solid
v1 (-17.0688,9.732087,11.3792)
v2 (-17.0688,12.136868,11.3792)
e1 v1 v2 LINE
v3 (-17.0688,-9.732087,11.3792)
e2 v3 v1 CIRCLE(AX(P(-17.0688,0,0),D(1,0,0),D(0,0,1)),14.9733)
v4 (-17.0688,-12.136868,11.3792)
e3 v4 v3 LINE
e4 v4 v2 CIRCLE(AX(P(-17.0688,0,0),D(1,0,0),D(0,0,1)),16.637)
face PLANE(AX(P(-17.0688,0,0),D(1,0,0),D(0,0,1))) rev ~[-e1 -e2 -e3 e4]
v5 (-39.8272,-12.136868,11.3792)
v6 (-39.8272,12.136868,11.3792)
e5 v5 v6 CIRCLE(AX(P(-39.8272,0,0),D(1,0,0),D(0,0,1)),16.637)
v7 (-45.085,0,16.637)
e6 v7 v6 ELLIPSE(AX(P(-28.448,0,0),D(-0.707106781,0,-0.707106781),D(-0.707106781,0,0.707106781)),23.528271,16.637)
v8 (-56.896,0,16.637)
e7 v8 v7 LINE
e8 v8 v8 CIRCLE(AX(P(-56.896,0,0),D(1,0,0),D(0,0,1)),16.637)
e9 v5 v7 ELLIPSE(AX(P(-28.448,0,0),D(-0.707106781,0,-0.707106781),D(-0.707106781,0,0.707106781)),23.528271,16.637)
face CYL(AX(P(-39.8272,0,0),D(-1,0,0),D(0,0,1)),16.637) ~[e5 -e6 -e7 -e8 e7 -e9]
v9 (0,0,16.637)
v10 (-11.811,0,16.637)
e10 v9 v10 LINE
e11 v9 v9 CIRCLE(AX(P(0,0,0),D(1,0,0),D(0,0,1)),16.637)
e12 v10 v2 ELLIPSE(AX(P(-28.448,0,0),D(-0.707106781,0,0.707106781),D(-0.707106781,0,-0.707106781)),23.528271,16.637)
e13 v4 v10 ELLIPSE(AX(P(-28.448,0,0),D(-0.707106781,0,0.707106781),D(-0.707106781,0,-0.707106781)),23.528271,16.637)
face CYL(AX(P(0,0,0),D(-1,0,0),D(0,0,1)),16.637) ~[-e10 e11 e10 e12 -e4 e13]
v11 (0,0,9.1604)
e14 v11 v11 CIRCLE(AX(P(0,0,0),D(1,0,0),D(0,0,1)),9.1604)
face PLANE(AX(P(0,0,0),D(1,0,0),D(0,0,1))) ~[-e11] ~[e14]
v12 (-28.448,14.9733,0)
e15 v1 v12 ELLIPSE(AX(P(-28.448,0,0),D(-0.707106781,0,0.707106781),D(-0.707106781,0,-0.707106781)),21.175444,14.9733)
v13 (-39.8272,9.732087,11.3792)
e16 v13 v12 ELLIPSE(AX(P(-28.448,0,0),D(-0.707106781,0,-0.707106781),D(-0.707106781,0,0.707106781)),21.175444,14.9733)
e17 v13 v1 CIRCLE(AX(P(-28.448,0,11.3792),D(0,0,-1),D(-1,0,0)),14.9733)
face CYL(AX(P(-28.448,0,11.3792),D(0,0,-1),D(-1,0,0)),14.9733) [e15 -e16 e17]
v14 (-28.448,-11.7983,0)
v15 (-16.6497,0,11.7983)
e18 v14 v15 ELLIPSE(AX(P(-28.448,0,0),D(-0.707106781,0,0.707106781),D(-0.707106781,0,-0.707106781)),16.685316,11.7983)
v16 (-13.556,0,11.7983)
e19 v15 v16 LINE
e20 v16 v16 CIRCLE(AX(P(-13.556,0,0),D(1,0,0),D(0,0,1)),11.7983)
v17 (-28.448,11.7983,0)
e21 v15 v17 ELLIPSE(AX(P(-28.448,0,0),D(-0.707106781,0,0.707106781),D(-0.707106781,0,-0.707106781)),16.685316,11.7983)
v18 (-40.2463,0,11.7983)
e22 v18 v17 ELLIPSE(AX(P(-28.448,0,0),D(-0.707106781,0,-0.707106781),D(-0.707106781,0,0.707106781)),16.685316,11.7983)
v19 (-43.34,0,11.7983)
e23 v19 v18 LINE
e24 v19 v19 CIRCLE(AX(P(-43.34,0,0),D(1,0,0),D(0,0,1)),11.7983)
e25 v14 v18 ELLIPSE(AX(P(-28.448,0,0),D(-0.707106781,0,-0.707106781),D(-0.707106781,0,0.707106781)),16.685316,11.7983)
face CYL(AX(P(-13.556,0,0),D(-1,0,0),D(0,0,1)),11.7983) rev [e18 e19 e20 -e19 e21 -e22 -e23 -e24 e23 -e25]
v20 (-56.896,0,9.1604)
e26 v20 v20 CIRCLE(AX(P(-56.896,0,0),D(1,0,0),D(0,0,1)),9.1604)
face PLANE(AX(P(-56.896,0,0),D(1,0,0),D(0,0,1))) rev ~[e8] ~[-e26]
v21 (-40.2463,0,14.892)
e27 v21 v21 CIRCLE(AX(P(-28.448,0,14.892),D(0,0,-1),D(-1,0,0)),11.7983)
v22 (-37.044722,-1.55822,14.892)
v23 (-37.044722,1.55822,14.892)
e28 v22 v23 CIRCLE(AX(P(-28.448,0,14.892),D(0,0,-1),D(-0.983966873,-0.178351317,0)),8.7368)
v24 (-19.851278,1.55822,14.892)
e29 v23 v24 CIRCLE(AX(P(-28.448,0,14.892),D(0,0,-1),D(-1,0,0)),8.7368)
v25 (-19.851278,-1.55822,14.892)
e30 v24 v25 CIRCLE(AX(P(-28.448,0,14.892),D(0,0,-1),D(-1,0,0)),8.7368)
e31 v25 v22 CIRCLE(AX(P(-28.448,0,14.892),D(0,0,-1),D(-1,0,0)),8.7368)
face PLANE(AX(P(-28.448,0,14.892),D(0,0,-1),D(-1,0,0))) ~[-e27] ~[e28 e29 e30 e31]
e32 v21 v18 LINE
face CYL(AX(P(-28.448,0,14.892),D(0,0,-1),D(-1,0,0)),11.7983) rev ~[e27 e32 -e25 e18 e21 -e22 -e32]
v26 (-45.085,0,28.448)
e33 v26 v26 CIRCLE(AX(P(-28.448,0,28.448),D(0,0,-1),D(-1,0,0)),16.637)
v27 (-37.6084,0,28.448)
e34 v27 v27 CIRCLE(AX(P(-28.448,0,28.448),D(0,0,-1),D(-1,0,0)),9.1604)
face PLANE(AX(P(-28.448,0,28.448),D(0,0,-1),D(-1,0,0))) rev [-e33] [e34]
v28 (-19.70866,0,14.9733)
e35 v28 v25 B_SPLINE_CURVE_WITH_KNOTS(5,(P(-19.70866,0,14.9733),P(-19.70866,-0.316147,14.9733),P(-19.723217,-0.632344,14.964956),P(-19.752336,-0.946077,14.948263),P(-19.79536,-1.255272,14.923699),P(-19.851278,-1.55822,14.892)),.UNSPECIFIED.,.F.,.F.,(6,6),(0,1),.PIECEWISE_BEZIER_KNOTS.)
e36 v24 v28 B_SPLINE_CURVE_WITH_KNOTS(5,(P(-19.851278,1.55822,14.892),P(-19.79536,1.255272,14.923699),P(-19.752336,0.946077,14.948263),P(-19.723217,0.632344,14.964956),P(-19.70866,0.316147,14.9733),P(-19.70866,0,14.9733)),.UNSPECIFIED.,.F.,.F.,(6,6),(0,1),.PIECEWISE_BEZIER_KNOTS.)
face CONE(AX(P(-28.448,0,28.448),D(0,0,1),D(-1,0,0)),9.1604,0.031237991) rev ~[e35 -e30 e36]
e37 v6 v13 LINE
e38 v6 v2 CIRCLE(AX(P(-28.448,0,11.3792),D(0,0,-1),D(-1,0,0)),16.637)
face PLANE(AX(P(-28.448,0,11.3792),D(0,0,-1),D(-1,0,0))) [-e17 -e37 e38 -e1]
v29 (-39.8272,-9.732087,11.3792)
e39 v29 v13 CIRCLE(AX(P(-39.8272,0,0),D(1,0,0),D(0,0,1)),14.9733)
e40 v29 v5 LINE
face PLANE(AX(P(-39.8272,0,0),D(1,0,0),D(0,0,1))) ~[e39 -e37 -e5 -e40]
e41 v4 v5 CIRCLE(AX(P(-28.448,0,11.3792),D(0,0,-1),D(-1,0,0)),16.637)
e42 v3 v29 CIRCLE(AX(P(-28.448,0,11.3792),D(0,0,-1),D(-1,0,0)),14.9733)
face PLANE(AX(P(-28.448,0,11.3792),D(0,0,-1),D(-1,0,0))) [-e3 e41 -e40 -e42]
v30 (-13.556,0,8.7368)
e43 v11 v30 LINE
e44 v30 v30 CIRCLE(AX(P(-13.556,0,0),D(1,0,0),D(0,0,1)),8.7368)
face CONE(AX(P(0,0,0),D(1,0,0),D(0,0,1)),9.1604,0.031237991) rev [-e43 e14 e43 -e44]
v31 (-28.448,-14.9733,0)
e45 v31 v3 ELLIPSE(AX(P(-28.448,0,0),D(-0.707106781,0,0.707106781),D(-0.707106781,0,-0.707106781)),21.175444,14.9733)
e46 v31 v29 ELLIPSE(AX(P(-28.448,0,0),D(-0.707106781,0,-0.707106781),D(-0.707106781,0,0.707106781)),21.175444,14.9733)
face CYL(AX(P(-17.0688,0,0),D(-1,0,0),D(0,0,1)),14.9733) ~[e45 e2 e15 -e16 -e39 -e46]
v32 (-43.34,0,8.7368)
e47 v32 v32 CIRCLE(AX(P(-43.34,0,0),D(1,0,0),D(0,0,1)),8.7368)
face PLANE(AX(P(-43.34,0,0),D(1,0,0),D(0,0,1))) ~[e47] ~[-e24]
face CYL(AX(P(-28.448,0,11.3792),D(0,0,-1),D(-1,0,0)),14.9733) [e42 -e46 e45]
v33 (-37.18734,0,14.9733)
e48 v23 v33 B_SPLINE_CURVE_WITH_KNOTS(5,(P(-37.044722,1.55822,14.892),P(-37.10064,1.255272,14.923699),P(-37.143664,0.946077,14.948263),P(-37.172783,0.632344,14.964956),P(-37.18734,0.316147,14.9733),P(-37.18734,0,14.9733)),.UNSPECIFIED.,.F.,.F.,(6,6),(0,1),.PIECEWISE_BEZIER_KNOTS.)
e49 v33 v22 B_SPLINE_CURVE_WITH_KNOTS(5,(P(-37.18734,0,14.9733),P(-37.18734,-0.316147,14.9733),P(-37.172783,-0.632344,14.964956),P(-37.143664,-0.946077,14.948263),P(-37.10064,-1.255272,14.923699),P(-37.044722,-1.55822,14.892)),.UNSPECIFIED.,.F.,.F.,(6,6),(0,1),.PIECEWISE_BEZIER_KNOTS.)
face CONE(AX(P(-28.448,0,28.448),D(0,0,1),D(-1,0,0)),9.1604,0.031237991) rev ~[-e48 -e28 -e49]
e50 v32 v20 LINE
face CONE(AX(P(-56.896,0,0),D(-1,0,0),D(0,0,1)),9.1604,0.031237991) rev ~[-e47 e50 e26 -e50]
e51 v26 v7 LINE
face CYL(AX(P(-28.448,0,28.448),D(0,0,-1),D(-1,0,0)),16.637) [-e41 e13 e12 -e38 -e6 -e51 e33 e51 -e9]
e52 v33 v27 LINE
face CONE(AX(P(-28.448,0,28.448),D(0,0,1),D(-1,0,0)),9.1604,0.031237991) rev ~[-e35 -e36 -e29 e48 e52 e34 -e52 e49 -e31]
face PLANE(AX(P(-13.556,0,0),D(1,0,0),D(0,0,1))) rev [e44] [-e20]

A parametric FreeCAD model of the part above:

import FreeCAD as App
import Part
import Sketcher
Q = App.Units.Quantity

doc = App.newDocument("Part")
body = doc.addObject("PartDesign::Body", "Body")

sketch1 = body.newObject("Sketcher::SketchObject", "Sketch")
sketch1.AttachmentSupport = (doc.getObject("XZ_Plane"), [""])
sketch1.MapMode = "FlatFace"
sketch1.addGeometry([
    Part.LineSegment(App.Vector(-17.1, 16.6, 0), App.Vector(0, 16.6, 0)),
    Part.LineSegment(App.Vector(0, 16.6, 0), App.Vector(0, 0, 0)),
    Part.LineSegment(App.Vector(0, 0, 0), App.Vector(-56.9, 0, 0)),
    Part.LineSegment(App.Vector(-56.9, 0, 0), App.Vector(-56.9, 16.6, 0)),
    Part.LineSegment(App.Vector(-56.9, 16.6, 0), App.Vector(-39.8, 16.6, 0)),
    Part.LineSegment(App.Vector(-39.8, 16.6, 0), App.Vector(-39.8, 15, 0)),
    Part.LineSegment(App.Vector(-39.8, 15, 0), App.Vector(-17.1, 15, 0)),
    Part.LineSegment(App.Vector(-17.1, 15, 0), App.Vector(-17.1, 16.6, 0)),
], False)
sketch1.addConstraint([
    Sketcher.Constraint("Coincident", 0, 2, 1, 1),
    Sketcher.Constraint("Coincident", 1, 2, 2, 1),
    Sketcher.Constraint("Coincident", 2, 2, 3, 1),
    Sketcher.Constraint("Coincident", 3, 2, 4, 1),
    Sketcher.Constraint("Coincident", 4, 2, 5, 1),
    Sketcher.Constraint("Coincident", 5, 2, 6, 1),
    Sketcher.Constraint("Coincident", 6, 2, 7, 1),
    Sketcher.Constraint("Coincident", 7, 2, 0, 1),
    Sketcher.Constraint("Horizontal", 0),
    Sketcher.Constraint("Vertical", 1),
    Sketcher.Constraint("Horizontal", 2),
    Sketcher.Constraint("Vertical", 3),
    Sketcher.Constraint("Horizontal", 4),
    Sketcher.Constraint("Vertical", 5),
    Sketcher.Constraint("Horizontal", 6),
    Sketcher.Constraint("Vertical", 7),
    Sketcher.Constraint("Coincident", 1, 2, -1, 1),
    Sketcher.Constraint("Horizontal", 0, 2, 3, 2),
    Sketcher.Constraint("Equal", 0, 4),
    Sketcher.Constraint("DistanceX", 0, 1, 0, 2, Q("0.672 in")),
    Sketcher.Constraint("DistanceX", 2, 2, 2, 1, Q("2.24 in")),
    Sketcher.Constraint("DistanceY", 1, 2, 1, 1, Q("0.655 in")),
    Sketcher.Constraint("DistanceY", 5, 2, 5, 1, Q("0.0655 in")),
])
revolution = body.newObject("PartDesign::Revolution", "Revolution")
revolution.Profile = sketch1
revolution.ReferenceAxis = (sketch1, ["H_Axis"])
revolution.Angle = 360

sketch2 = body.newObject("Sketcher::SketchObject", "Sketch001")
sketch2.AttachmentSupport = (doc.getObject("XZ_Plane"), [""])
sketch2.MapMode = "FlatFace"
sketch2.addGeometry([
    Part.LineSegment(App.Vector(-37.6, 28.4, 0), App.Vector(-37.2, 14.9, 0)),
    Part.LineSegment(App.Vector(-37.2, 14.9, 0), App.Vector(-28.4, 14.9, 0)),
    Part.LineSegment(App.Vector(-28.4, 14.9, 0), App.Vector(-28.4, 0, 0)),
    Part.LineSegment(App.Vector(-28.4, 0, 0), App.Vector(-43.4, 0, 0)),
    Part.LineSegment(App.Vector(-43.4, 0, 0), App.Vector(-43.4, 11.4, 0)),
    Part.LineSegment(App.Vector(-43.4, 11.4, 0), App.Vector(-45.1, 11.4, 0)),
    Part.LineSegment(App.Vector(-45.1, 11.4, 0), App.Vector(-45.1, 28.4, 0)),
    Part.LineSegment(App.Vector(-45.1, 28.4, 0), App.Vector(-37.6, 28.4, 0)),
], False)
sketch2.addGeometry(Part.LineSegment(App.Vector(-28.4, 28.4, 0), App.Vector(-28.4, 0, 0)), True)
sketch2.addConstraint([
    Sketcher.Constraint("Coincident", 0, 2, 1, 1),
    Sketcher.Constraint("Coincident", 1, 2, 2, 1),
    Sketcher.Constraint("Coincident", 2, 2, 3, 1),
    Sketcher.Constraint("Coincident", 3, 2, 4, 1),
    Sketcher.Constraint("Coincident", 4, 2, 5, 1),
    Sketcher.Constraint("Coincident", 5, 2, 6, 1),
    Sketcher.Constraint("Coincident", 6, 2, 7, 1),
    Sketcher.Constraint("Coincident", 7, 2, 0, 1),
    Sketcher.Constraint("Horizontal", 1),
    Sketcher.Constraint("Vertical", 2),
    Sketcher.Constraint("Horizontal", 3),
    Sketcher.Constraint("Vertical", 4),
    Sketcher.Constraint("Horizontal", 5),
    Sketcher.Constraint("Vertical", 6),
    Sketcher.Constraint("Horizontal", 7),
    Sketcher.Constraint("Vertical", 8),
    Sketcher.Constraint("Coincident", 8, 2, 2, 2),
    Sketcher.Constraint("PointOnObject", 2, 2, -1),
    Sketcher.Constraint("Horizontal", 7, 2, 8, 1),
    Sketcher.Constraint("DistanceY", 8, 2, 8, 1, Q("1.12 in")),
    Sketcher.Constraint("DistanceY", 6, 1, 6, 2, Q("0.672 in")),
    Sketcher.Constraint("DistanceX", 1, 2, -1, 1, Q("1.12 in")),
    Sketcher.Constraint("DistanceY", 0, 2, 6, 2, Q("0.5337 in")),
    Sketcher.Constraint("Angle", 0, Q("-88.2102 deg")),
    Sketcher.Constraint("DistanceX", 3, 2, 3, 1, Q("0.5895 in")),
    Sketcher.Constraint("DistanceX", 5, 2, 5, 1, Q("0.0655 in")),
    Sketcher.Constraint("DistanceX", 1, 1, 1, 2, Q("8.7368 mm")),
])
revolution2 = body.newObject("PartDesign::Revolution", "Revolution001")
revolution2.Profile = sketch2
revolution2.ReferenceAxis = (sketch2, ["Axis0"])
revolution2.Angle = 360

sketch3 = body.newObject("Sketcher::SketchObject", "Sketch002")
sketch3.AttachmentSupport = (doc.getObject("XZ_Plane"), [""])
sketch3.MapMode = "FlatFace"
sketch3.addGeometry([
    Part.LineSegment(App.Vector(-13.6, 8.7, 0), App.Vector(0, 9.2, 0)),
    Part.LineSegment(App.Vector(0, 9.2, 0), App.Vector(0, 0, 0)),
    Part.LineSegment(App.Vector(0, 0, 0), App.Vector(-56.9, 0, 0)),
    Part.LineSegment(App.Vector(-56.9, 0, 0), App.Vector(-56.9, 9.2, 0)),
    Part.LineSegment(App.Vector(-56.9, 9.2, 0), App.Vector(-43.3, 8.7, 0)),
    Part.LineSegment(App.Vector(-43.3, 8.7, 0), App.Vector(-43.3, 11.8, 0)),
    Part.LineSegment(App.Vector(-43.3, 11.8, 0), App.Vector(-13.6, 11.8, 0)),
    Part.LineSegment(App.Vector(-13.6, 11.8, 0), App.Vector(-13.6, 8.7, 0)),
], False)
sketch3.addConstraint([
    Sketcher.Constraint("Coincident", 0, 2, 1, 1),
    Sketcher.Constraint("Coincident", 1, 2, 2, 1),
    Sketcher.Constraint("Coincident", 2, 2, 3, 1),
    Sketcher.Constraint("Coincident", 3, 2, 4, 1),
    Sketcher.Constraint("Coincident", 4, 2, 5, 1),
    Sketcher.Constraint("Coincident", 5, 2, 6, 1),
    Sketcher.Constraint("Coincident", 6, 2, 7, 1),
    Sketcher.Constraint("Coincident", 7, 2, 0, 1),
    Sketcher.Constraint("Vertical", 1),
    Sketcher.Constraint("Horizontal", 2),
    Sketcher.Constraint("Vertical", 3),
    Sketcher.Constraint("Vertical", 5),
    Sketcher.Constraint("Horizontal", 6),
    Sketcher.Constraint("Vertical", 7),
    Sketcher.Constraint("Coincident", 1, 2, -1, 1),
    Sketcher.Constraint("Horizontal", 0, 2, 3, 2),
    Sketcher.Constraint("Horizontal", 4, 2, 7, 2),
    Sketcher.Constraint("Equal", 0, 4),
    Sketcher.Constraint("Angle", 0, Q("1.7898 deg")),
    Sketcher.Constraint("DistanceX", 2, 2, 2, 1, Q("2.24 in")),
    Sketcher.Constraint("DistanceX", 6, 2, -1, 1, Q("0.5337 in")),
    Sketcher.Constraint("DistanceY", 1, 2, 1, 1, Q("9.1604 mm")),
    Sketcher.Constraint("DistanceY", 5, 1, 5, 2, Q("3.0615 mm")),
])
groove = body.newObject("PartDesign::Groove", "Groove")
groove.Profile = sketch3
groove.ReferenceAxis = (sketch3, ["H_Axis"])
groove.Angle = 360

sketch4 = body.newObject("Sketcher::SketchObject", "Sketch003")
sketch4.AttachmentSupport = (doc.getObject("XZ_Plane"), [""])
sketch4.MapMode = "FlatFace"
sketch4.addGeometry([
    Part.LineSegment(App.Vector(-28.4, 28.4, 0), App.Vector(-28.4, 0, 0)),
    Part.LineSegment(App.Vector(-28.4, 0, 0), App.Vector(-40.2, 0, 0)),
    Part.LineSegment(App.Vector(-40.2, 0, 0), App.Vector(-40.2, 14.9, 0)),
    Part.LineSegment(App.Vector(-40.2, 14.9, 0), App.Vector(-37.2, 14.9, 0)),
    Part.LineSegment(App.Vector(-37.2, 14.9, 0), App.Vector(-37.6, 28.4, 0)),
    Part.LineSegment(App.Vector(-37.6, 28.4, 0), App.Vector(-28.4, 28.4, 0)),
], False)
sketch4.addGeometry(Part.LineSegment(App.Vector(-28.4, 28.4, 0), App.Vector(-28.4, 0, 0)), True)
sketch4.addConstraint([
    Sketcher.Constraint("Coincident", 0, 2, 1, 1),
    Sketcher.Constraint("Coincident", 1, 2, 2, 1),
    Sketcher.Constraint("Coincident", 2, 2, 3, 1),
    Sketcher.Constraint("Coincident", 3, 2, 4, 1),
    Sketcher.Constraint("Coincident", 4, 2, 5, 1),
    Sketcher.Constraint("Coincident", 5, 2, 0, 1),
    Sketcher.Constraint("Vertical", 0),
    Sketcher.Constraint("Horizontal", 1),
    Sketcher.Constraint("Vertical", 2),
    Sketcher.Constraint("Horizontal", 3),
    Sketcher.Constraint("Horizontal", 5),
    Sketcher.Constraint("Vertical", 6),
    Sketcher.Constraint("Coincident", 6, 1, 5, 2),
    Sketcher.Constraint("PointOnObject", 0, 2, -1),
    Sketcher.Constraint("PointOnObject", 6, 2, -1),
    Sketcher.Constraint("DistanceY", 0, 2, 0, 1, Q("1.12 in")),
    Sketcher.Constraint("DistanceX", 0, 2, -1, 1, Q("1.12 in")),
    Sketcher.Constraint("DistanceY", 3, 2, 4, 2, Q("0.5337 in")),
    Sketcher.Constraint("Angle", 4, Q("91.7898 deg")),
    Sketcher.Constraint("DistanceX", 1, 2, 1, 1, Q("0.4645 in")),
    Sketcher.Constraint("DistanceX", 3, 1, 3, 2, Q("3.0615 mm")),
])
groove2 = body.newObject("PartDesign::Groove", "Groove001")
groove2.Profile = sketch4
groove2.ReferenceAxis = (sketch4, ["Axis0"])
groove2.Angle = 360

doc.recompute()
